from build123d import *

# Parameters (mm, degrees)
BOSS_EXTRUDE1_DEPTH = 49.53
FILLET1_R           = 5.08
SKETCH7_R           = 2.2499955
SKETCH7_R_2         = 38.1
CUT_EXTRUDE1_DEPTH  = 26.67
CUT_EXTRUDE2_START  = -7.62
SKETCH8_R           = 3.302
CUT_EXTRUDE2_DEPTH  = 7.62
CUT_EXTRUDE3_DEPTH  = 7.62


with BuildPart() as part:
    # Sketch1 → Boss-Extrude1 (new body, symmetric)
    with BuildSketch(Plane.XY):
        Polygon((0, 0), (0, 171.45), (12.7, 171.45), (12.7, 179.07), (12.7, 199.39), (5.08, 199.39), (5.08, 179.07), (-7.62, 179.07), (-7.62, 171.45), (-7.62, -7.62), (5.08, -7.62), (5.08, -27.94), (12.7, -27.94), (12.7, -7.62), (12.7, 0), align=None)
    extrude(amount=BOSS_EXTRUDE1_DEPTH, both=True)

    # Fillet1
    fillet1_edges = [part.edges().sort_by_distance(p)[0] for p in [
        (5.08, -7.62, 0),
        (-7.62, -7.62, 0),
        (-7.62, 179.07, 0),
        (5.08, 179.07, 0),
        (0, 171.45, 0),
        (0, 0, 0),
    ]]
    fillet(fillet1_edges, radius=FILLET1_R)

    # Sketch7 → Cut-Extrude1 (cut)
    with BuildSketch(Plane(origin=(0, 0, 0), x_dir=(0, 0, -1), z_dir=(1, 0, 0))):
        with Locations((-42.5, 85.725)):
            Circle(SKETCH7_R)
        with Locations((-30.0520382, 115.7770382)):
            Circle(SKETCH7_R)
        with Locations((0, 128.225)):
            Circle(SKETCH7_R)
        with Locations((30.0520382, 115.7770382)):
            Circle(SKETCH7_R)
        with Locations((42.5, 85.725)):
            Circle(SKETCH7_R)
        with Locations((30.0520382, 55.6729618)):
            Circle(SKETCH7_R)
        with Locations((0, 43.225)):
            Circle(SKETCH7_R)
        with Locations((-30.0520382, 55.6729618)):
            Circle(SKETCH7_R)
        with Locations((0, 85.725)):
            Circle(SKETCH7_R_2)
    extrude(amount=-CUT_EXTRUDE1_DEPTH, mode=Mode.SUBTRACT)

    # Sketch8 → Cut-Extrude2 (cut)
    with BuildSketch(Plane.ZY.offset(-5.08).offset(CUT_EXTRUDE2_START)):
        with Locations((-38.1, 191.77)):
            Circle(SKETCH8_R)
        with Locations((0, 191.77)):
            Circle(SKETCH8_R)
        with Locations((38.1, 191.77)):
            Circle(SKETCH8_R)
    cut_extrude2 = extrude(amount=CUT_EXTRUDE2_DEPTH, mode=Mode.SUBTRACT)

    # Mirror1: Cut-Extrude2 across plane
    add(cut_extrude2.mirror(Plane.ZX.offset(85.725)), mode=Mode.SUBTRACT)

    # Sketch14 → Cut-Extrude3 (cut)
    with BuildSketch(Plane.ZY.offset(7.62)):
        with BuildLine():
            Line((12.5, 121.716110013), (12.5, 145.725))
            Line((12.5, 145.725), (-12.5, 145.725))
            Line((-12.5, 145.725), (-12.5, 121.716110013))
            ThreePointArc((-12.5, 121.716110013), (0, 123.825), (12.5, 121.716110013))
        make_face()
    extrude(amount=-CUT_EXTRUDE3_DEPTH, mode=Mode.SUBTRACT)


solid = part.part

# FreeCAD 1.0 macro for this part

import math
import FreeCAD as App
import Part
import Sketcher

V = App.Vector
Q = App.Units.Quantity


def edges_at(feature, points):
    """Names of the edges that pass closest to the given points."""
    edges = feature.Shape.Edges
    near = lambda p: min(range(len(edges)), key=lambda i: edges[i].distToShape(Part.Vertex(*p))[0])
    return sorted({f"Edge{near(p) + 1}" for p in points})

doc = App.newDocument("Part")
body = doc.addObject("PartDesign::Body", "Body")

# Sketch on XY plane
sketch1 = body.newObject("Sketcher::SketchObject", "Sketch")
sketch1.AttachmentSupport = (doc.getObject("XY_Plane"), [""])
sketch1.MapMode = "FlatFace"
sketch1.addGeometry([
    Part.LineSegment(V(0, 0, 0), V(0, 171, 0)),  # 0
    Part.LineSegment(V(0, 171, 0), V(13, 171, 0)),  # 1
    Part.LineSegment(V(13, 171, 0), V(13, 199, 0)),  # 2
    Part.LineSegment(V(13, 199, 0), V(5, 199, 0)),  # 3
    Part.LineSegment(V(5, 199, 0), V(5, 179, 0)),  # 4
    Part.LineSegment(V(5, 179, 0), V(-8, 179, 0)),  # 5
    Part.LineSegment(V(-8, 179, 0), V(-8, -8, 0)),  # 6
    Part.LineSegment(V(-8, -8, 0), V(5, -8, 0)),  # 7
    Part.LineSegment(V(5, -8, 0), V(5, -28, 0)),  # 8
    Part.LineSegment(V(5, -28, 0), V(13, -28, 0)),  # 9
    Part.LineSegment(V(13, -28, 0), V(13, 0, 0)),  # 10
    Part.LineSegment(V(13, 0, 0), V(0, 0, 0)),  # 11
], False)
sketch1.addConstraint([
    Sketcher.Constraint("Coincident", 0, 2, 1, 1),
    Sketcher.Constraint("Coincident", 1, 2, 2, 1),
    Sketcher.Constraint("Coincident", 2, 2, 3, 1),
    Sketcher.Constraint("Coincident", 3, 2, 4, 1),
    Sketcher.Constraint("Coincident", 4, 2, 5, 1),
    Sketcher.Constraint("Coincident", 5, 2, 6, 1),
    Sketcher.Constraint("Coincident", 6, 2, 7, 1),
    Sketcher.Constraint("Coincident", 7, 2, 8, 1),
    Sketcher.Constraint("Coincident", 8, 2, 9, 1),
    Sketcher.Constraint("Coincident", 9, 2, 10, 1),
    Sketcher.Constraint("Coincident", 10, 2, 11, 1),
    Sketcher.Constraint("Coincident", 11, 2, 0, 1),
    Sketcher.Constraint("Vertical", 0),
    Sketcher.Constraint("Horizontal", 1),
    Sketcher.Constraint("Vertical", 2),
    Sketcher.Constraint("Horizontal", 3),
    Sketcher.Constraint("Vertical", 4),
    Sketcher.Constraint("Horizontal", 5),
    Sketcher.Constraint("Vertical", 6),
    Sketcher.Constraint("Horizontal", 7),
    Sketcher.Constraint("Vertical", 8),
    Sketcher.Constraint("Horizontal", 9),
    Sketcher.Constraint("Vertical", 10),
    Sketcher.Constraint("Horizontal", 11),
    Sketcher.Constraint("Coincident", 11, 2, -1, 1),
    Sketcher.Constraint("Vertical", 4, 2, 7, 2),
    Sketcher.Constraint("Vertical", 2, 2, 9, 2),
    Sketcher.Constraint("Equal", 1, 5),
    Sketcher.Constraint("Equal", 4, 8),
    Sketcher.Constraint("Equal", 2, 10),
    Sketcher.Constraint("DistanceX", 1, 1, 1, 2, Q("0.5 in")),
    Sketcher.Constraint("DistanceX", 3, 2, 3, 1, Q("0.3 in")),
    Sketcher.Constraint("DistanceY", 2, 1, 2, 2, Q("1.1 in")),
    Sketcher.Constraint("DistanceY", 4, 2, 4, 1, Q("0.8 in")),
    Sketcher.Constraint("DistanceY", 0, 1, 0, 2, Q("6.75 in")),
])
pad1 = body.newObject("PartDesign::Pad", "Pad")
pad1.Profile = sketch1
pad1.Length = Q("3.9 in")
pad1.Midplane = True
doc.recompute()

fillet = body.newObject("PartDesign::Fillet", "Fillet")
fillet.Base = (pad1, edges_at(pad1, [
    (5.08, -7.62, 0),
    (-7.62, -7.62, 0),
    (-7.62, 179.07, 0),
    (5.08, 179.07, 0),
    (0, 171.45, 0),
    (0, 0, 0),
]))
fillet.Radius = Q("0.2 in")

# Sketch on YZ plane
sketch2 = body.newObject("Sketcher::SketchObject", "Sketch001")
sketch2.AttachmentSupport = (doc.getObject("YZ_Plane"), [""])
sketch2.MapMode = "FlatFace"
sketch2.addGeometry([
    Part.Circle(V(85.7, 42.5, 0), V(0, 0, 1), 2.2),  # 0
    Part.Circle(V(115.8, 30.1, 0), V(0, 0, 1), 2.2),  # 1
    Part.Circle(V(128.2, 0, 0), V(0, 0, 1), 2.2),  # 2
    Part.Circle(V(115.8, -30.1, 0), V(0, 0, 1), 2.2),  # 3
    Part.Circle(V(85.7, -42.5, 0), V(0, 0, 1), 2.2),  # 4
    Part.Circle(V(55.7, -30.1, 0), V(0, 0, 1), 2.2),  # 5
    Part.Circle(V(43.2, 0, 0), V(0, 0, 1), 2.2),  # 6
    Part.Circle(V(55.7, 30.1, 0), V(0, 0, 1), 2.2),  # 7
    Part.Circle(V(85.7, 0, 0), V(0, 0, 1), 38.1),  # 8
], False)
sketch2.addConstraint([
    Sketcher.Constraint("Equal", 0, 1),
    Sketcher.Constraint("Equal", 1, 2),
    Sketcher.Constraint("Equal", 2, 3),
    Sketcher.Constraint("Equal", 3, 4),
    Sketcher.Constraint("Equal", 4, 5),
    Sketcher.Constraint("Equal", 5, 6),
    Sketcher.Constraint("Equal", 6, 7),
    Sketcher.Constraint("Symmetric", 1, 3, 3, 3, -1),
    Sketcher.Constraint("Symmetric", 0, 3, 4, 3, -1),
    Sketcher.Constraint("Symmetric", 5, 3, 7, 3, -1),
    Sketcher.Constraint("PointOnObject", 2, 3, -1),
    Sketcher.Constraint("PointOnObject", 6, 3, -1),
    Sketcher.Constraint("PointOnObject", 8, 3, -1),
    Sketcher.Constraint("Horizontal", 3, 3, 5, 3),
    Sketcher.Constraint("Vertical", 4, 3, 8, 3),
    Sketcher.Constraint("Diameter", 8, Q("3 in")),
    Sketcher.Constraint("Diameter", 0, Q("4.499991 mm")),
    Sketcher.Constraint("DistanceX", -1, 1, 0, 3, Q("3.375 in")),
    Sketcher.Constraint("DistanceY", -1, 1, 0, 3, Q("42.5 mm")),
    Sketcher.Constraint("DistanceX", -1, 1, 2, 3, Q("128.225 mm")),
    Sketcher.Constraint("DistanceX", -1, 1, 6, 3, Q("43.225 mm")),
    Sketcher.Constraint("DistanceX", -1, 1, 1, 3, Q("115.777038 mm")),
    Sketcher.Constraint("DistanceY", -1, 1, 1, 3, Q("30.052038 mm")),
    Sketcher.Constraint("DistanceX", -1, 1, 5, 3, Q("55.672962 mm")),
])
pocket1 = body.newObject("PartDesign::Pocket", "Pocket")
pocket1.Profile = sketch2
pocket1.Length = Q("1.05 in")

# Sketch on YZ plane
sketch3 = body.newObject("Sketcher::SketchObject", "Sketch002")
sketch3.AttachmentSupport = (doc.getObject("YZ_Plane"), [""])
sketch3.MapMode = "FlatFace"
sketch3.AttachmentOffset = App.Placement(V(0, 0, 0.5 * 25.4), App.Rotation())
sketch3.addGeometry([
    Part.Circle(V(191.8, -38.1, 0), V(0, 0, 1), 3.3),
    Part.Circle(V(191.8, 0, 0), V(0, 0, 1), 3.3),
    Part.Circle(V(191.8, 38.1, 0), V(0, 0, 1), 3.3),
], False)
sketch3.addConstraint([
    Sketcher.Constraint("Equal", 0, 1),
    Sketcher.Constraint("Equal", 1, 2),
    Sketcher.Constraint("Symmetric", 0, 3, 2, 3, -1),
    Sketcher.Constraint("PointOnObject", 1, 3, -1),
    Sketcher.Constraint("Vertical", 0, 3, 1, 3),
    Sketcher.Constraint("Diameter", 0, Q("0.26 in")),
    Sketcher.Constraint("DistanceY", 0, 3, 2, 3, Q("3 in")),
    Sketcher.Constraint("DistanceX", -1, 1, 0, 3, Q("7.55 in")),
])
pocket2 = body.newObject("PartDesign::Pocket", "Pocket001")
pocket2.Profile = sketch3
pocket2.Length = Q("0.3 in")
doc.recompute()

datumplane = body.newObject("PartDesign::Plane", "DatumPlane")
datumplane.AttachmentSupport = (doc.getObject("XZ_Plane"), [""])
datumplane.MapMode = "FlatFace"
datumplane.AttachmentOffset = App.Placement(V(0, 0, -3.375 * 25.4), App.Rotation())
mirrored = body.newObject("PartDesign::Mirrored", "Mirrored")
mirrored.Originals = [pocket2]
mirrored.MirrorPlane = (datumplane, [""])
body.Tip = mirrored

# Sketch on YZ plane
sketch4 = body.newObject("Sketcher::SketchObject", "Sketch003")
sketch4.AttachmentSupport = (doc.getObject("YZ_Plane"), [""])
sketch4.MapMode = "FlatFace"
sketch4.AttachmentOffset = App.Placement(V(0, 0, -0.3 * 25.4), App.Rotation())
sketch4.addGeometry([
    Part.LineSegment(V(122, 12, 0), V(146, 12, 0)),
    Part.LineSegment(V(146, 12, 0), V(146, -12, 0)),
    Part.LineSegment(V(146, -12, 0), V(122, -12, 0)),
    Part.ArcOfCircle(Part.Circle(V(86, 0, 0), V(0, 0, 1), 38), math.radians(-19), math.radians(19)),
], False)
sketch4.addConstraint([
    Sketcher.Constraint("Coincident", 0, 2, 1, 1),
    Sketcher.Constraint("Coincident", 1, 2, 2, 1),
    Sketcher.Constraint("Coincident", 2, 2, 3, 1),
    Sketcher.Constraint("Coincident", 3, 2, 0, 1),
    Sketcher.Constraint("Horizontal", 0),
    Sketcher.Constraint("Vertical", 1),
    Sketcher.Constraint("Horizontal", 2),
    Sketcher.Constraint("Symmetric", 2, 2, 3, 2, -1),
    Sketcher.Constraint("Radius", 3, Q("1.5 in")),
    Sketcher.Constraint("DistanceX", -1, 1, 3, 3, Q("3.375 in")),
    Sketcher.Constraint("DistanceY", 1, 2, 1, 1, Q("25 mm")),
    Sketcher.Constraint("DistanceX", 0, 1, 0, 2, Q("24.00889 mm")),
])
pocket3 = body.newObject("PartDesign::Pocket", "Pocket002")
pocket3.Profile = sketch4
pocket3.Length = Q("0.3 in")
pocket3.Reversed = True

doc.recompute()
